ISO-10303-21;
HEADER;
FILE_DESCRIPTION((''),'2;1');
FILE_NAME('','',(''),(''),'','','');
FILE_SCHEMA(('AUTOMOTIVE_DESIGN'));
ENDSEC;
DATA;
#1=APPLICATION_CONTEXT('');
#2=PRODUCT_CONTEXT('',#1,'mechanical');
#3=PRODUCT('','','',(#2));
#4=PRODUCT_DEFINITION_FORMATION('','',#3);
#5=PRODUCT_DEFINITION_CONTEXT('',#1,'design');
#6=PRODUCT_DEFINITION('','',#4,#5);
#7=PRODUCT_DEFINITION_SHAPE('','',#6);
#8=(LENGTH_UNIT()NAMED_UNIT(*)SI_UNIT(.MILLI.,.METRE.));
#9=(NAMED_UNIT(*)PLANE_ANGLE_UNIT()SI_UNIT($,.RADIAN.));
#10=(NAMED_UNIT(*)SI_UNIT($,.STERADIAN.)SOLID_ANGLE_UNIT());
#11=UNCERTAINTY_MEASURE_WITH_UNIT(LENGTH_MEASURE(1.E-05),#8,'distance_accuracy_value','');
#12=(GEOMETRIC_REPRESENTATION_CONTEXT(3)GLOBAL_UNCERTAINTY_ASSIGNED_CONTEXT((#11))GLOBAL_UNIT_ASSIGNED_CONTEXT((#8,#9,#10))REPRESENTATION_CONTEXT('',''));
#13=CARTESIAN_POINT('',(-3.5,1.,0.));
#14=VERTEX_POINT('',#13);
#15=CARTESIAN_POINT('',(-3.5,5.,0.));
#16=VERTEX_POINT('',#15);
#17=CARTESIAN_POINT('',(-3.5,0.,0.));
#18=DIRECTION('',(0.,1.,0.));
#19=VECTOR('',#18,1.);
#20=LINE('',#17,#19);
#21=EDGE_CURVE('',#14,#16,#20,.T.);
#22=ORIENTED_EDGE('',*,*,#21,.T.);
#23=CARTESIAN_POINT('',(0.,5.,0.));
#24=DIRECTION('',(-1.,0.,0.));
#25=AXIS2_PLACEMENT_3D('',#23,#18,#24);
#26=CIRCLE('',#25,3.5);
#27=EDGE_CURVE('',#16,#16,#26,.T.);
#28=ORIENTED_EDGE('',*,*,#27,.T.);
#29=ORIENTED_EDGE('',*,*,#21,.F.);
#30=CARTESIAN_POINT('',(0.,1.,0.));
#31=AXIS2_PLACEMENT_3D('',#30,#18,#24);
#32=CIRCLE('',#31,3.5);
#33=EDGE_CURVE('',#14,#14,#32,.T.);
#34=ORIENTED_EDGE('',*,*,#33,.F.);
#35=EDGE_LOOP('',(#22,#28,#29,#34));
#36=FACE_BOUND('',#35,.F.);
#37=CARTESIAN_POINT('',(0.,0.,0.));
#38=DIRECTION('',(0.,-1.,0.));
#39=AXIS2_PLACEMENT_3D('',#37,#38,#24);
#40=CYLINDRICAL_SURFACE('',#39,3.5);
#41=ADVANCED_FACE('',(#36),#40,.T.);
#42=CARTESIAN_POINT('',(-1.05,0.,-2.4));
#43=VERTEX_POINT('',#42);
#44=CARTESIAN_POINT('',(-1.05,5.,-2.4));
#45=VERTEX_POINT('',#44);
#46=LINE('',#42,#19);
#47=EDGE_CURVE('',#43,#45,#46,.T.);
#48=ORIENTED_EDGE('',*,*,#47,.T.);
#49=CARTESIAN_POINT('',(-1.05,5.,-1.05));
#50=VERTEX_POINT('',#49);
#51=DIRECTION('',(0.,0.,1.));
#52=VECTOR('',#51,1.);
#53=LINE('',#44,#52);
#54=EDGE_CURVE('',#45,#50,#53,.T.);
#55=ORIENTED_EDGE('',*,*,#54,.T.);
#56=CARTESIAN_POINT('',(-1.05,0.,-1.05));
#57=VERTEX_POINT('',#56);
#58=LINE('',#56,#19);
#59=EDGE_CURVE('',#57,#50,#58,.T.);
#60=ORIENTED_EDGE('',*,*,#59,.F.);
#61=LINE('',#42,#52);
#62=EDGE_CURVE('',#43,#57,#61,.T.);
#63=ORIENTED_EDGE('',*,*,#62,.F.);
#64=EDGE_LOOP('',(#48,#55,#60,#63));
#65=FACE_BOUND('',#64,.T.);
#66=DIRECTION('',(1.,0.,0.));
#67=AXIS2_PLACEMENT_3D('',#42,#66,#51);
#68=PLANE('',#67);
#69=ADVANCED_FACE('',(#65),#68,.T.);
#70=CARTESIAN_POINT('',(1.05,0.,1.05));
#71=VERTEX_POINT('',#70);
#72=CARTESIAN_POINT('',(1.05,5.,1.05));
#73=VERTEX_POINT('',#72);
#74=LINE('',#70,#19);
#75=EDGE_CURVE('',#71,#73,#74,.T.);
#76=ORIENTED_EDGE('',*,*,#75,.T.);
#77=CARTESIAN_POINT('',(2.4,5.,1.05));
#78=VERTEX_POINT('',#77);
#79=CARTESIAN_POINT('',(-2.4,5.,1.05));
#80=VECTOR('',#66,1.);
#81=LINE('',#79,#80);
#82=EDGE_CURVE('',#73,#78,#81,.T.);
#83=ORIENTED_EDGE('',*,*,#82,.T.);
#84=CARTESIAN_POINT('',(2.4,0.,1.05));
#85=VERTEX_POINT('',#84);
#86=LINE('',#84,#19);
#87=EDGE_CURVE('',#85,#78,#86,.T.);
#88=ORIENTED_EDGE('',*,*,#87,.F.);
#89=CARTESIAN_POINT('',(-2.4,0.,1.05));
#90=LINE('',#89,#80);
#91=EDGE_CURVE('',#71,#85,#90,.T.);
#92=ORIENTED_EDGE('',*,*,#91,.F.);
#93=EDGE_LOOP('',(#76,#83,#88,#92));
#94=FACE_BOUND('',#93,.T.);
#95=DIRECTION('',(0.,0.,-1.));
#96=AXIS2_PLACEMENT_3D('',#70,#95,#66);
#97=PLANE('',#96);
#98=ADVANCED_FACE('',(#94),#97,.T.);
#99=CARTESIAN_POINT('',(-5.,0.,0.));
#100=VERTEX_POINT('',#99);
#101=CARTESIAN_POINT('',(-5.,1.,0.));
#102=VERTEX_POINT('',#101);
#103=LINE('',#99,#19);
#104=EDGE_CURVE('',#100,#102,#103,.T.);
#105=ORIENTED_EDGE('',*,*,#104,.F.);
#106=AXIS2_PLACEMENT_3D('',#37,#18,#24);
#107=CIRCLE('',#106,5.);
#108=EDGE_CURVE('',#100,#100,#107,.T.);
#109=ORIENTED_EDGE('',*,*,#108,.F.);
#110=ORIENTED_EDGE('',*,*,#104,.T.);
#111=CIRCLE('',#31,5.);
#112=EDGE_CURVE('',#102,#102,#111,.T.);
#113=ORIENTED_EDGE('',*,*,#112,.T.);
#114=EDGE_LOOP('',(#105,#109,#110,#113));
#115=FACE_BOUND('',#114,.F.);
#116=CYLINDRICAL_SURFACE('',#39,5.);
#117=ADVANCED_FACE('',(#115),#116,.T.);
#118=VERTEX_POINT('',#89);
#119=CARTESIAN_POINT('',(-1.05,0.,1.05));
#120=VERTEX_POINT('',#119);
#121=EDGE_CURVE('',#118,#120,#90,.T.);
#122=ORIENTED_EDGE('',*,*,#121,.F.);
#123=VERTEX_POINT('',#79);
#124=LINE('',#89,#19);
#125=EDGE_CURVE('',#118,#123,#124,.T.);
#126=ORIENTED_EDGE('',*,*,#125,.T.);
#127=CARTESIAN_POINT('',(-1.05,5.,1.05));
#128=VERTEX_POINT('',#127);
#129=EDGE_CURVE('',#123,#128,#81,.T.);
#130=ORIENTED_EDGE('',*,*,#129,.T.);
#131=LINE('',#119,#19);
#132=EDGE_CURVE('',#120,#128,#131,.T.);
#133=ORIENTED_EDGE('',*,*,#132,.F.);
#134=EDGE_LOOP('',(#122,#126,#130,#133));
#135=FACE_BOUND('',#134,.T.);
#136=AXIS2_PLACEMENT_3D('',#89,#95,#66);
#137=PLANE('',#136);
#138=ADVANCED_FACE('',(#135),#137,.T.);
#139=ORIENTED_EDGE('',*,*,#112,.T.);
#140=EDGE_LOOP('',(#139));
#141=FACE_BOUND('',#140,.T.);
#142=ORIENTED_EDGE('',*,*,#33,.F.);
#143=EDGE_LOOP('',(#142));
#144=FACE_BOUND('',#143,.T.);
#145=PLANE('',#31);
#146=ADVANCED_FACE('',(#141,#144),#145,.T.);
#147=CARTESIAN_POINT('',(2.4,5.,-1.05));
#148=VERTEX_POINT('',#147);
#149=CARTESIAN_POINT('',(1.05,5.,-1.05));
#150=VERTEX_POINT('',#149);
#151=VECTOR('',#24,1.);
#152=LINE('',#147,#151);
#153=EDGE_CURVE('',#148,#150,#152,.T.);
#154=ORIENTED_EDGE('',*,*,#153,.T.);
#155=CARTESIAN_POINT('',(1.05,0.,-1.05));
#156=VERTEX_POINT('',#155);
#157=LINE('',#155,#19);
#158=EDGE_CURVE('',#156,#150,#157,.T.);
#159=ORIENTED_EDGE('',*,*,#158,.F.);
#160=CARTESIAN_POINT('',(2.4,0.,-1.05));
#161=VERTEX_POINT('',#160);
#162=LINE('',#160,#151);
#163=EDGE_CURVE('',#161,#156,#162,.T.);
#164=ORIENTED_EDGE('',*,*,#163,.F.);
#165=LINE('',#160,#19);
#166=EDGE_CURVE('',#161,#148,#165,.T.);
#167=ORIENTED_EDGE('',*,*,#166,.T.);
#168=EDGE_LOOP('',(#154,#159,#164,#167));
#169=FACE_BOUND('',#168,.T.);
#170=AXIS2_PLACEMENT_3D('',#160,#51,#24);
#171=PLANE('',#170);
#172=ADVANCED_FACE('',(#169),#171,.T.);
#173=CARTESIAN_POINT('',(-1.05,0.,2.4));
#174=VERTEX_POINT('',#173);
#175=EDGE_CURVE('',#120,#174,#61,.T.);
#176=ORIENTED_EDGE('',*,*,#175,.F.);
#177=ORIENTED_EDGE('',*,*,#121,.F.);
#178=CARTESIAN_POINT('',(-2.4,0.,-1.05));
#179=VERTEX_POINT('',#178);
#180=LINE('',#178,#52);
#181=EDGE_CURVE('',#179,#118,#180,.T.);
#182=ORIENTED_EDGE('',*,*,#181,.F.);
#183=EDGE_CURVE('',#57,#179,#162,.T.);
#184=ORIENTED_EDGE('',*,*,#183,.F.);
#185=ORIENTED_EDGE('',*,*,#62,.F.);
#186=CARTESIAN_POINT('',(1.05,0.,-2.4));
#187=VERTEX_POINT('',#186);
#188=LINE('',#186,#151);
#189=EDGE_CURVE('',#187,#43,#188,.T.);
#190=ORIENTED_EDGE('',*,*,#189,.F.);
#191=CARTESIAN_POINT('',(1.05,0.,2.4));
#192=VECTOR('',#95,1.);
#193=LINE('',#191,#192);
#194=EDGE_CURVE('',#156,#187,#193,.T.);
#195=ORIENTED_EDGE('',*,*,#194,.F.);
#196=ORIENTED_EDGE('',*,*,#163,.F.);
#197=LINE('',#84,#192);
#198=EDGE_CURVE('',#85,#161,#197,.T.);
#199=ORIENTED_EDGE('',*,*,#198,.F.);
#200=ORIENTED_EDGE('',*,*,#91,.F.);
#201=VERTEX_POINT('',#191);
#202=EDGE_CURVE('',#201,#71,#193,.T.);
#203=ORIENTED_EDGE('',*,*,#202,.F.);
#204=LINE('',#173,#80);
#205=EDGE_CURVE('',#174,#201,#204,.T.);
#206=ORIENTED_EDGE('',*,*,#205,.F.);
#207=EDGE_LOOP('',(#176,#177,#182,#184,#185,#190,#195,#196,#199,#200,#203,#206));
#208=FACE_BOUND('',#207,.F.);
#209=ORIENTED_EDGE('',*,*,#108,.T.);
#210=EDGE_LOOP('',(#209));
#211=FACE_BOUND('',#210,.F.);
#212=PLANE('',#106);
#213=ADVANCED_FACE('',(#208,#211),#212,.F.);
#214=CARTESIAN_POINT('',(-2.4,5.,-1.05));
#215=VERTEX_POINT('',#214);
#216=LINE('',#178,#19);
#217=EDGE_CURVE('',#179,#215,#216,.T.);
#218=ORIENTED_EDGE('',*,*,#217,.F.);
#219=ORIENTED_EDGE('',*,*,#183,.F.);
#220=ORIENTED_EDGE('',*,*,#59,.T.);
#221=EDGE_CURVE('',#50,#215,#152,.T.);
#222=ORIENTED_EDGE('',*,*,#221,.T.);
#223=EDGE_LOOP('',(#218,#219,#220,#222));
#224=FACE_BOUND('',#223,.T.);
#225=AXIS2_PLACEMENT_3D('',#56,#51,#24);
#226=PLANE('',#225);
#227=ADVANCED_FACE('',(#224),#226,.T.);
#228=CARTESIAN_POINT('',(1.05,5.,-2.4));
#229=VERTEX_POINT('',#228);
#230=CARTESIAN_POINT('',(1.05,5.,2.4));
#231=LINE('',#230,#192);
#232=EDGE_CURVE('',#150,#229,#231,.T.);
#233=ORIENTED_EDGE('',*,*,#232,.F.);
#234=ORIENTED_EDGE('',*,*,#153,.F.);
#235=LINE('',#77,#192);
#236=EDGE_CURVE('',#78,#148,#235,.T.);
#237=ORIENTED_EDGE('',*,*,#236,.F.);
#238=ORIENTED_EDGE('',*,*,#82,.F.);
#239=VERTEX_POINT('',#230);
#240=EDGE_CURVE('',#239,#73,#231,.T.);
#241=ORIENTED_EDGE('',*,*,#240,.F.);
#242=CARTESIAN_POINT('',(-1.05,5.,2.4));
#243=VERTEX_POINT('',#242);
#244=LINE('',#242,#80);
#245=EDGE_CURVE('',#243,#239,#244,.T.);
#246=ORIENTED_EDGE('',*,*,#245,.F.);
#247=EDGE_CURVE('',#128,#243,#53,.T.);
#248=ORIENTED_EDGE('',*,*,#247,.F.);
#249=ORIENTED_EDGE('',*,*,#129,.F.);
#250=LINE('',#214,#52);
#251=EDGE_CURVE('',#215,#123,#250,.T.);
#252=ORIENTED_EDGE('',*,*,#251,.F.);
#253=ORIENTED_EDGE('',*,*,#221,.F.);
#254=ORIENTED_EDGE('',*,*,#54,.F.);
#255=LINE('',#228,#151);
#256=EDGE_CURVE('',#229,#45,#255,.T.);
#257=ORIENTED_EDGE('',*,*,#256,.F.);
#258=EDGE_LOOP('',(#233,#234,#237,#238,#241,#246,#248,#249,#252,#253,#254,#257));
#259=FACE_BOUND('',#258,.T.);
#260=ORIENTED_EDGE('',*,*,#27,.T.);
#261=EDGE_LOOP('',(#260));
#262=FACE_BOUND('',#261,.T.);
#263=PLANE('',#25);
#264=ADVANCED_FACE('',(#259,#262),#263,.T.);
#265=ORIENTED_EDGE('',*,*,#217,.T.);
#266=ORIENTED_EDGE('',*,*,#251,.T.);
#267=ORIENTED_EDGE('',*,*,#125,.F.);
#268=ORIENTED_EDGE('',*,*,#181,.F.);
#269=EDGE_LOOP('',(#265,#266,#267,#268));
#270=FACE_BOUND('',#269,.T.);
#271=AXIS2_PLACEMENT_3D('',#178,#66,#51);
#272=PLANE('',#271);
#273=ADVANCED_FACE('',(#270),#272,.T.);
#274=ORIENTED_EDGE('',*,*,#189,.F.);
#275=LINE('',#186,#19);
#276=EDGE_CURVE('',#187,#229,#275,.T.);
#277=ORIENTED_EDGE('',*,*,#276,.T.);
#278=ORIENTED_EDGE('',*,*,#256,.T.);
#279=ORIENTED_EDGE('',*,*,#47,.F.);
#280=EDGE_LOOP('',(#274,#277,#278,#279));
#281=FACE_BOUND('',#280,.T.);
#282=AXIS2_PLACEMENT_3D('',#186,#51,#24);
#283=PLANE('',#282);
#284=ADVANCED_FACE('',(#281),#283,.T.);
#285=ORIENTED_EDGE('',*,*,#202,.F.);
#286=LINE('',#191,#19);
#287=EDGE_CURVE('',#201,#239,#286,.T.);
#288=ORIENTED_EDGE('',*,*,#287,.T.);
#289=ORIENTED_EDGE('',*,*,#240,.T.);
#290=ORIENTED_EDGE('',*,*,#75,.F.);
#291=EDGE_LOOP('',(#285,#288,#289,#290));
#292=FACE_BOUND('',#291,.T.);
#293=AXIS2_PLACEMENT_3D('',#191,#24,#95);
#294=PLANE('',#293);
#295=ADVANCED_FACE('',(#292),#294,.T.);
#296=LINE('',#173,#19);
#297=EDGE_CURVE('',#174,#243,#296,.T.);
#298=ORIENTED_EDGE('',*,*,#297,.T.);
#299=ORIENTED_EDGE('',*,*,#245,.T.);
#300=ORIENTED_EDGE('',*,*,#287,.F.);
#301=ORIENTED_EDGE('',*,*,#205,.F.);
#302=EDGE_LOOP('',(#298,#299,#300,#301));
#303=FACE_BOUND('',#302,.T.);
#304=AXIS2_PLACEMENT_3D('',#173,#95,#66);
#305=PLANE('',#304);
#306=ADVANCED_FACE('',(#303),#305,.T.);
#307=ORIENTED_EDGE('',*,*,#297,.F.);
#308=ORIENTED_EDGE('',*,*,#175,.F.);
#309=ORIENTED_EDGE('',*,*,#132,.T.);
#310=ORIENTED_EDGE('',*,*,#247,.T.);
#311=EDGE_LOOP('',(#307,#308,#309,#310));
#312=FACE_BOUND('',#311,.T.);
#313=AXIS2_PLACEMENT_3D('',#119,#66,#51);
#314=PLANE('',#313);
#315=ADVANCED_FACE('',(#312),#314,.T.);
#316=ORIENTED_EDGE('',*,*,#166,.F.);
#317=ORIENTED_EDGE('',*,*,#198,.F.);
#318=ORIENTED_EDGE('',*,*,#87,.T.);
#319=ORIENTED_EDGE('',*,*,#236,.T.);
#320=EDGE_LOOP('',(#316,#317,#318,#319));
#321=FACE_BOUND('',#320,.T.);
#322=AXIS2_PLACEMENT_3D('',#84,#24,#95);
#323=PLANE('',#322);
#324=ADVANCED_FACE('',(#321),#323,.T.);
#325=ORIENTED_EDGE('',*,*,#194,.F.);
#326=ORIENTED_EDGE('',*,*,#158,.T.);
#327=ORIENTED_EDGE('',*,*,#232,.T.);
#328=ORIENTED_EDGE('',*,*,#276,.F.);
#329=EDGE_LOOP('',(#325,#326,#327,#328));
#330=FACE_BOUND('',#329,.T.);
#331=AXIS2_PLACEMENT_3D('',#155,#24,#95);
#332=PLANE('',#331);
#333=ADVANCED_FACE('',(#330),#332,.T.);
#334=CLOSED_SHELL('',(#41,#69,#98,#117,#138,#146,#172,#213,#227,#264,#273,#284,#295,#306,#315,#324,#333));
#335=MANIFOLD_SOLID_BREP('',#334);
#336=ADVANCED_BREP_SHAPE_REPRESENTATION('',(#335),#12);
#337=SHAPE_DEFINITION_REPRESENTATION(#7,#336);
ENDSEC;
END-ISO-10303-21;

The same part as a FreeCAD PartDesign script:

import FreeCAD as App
import Part
import Sketcher

V = App.Vector


def add_polygon(sketch, points):
    """Adds a closed chain of lines whose ends are joined by coincident constraints."""
    first, n = sketch.GeometryCount, len(points)
    for a, b in zip(points, points[1:] + points[:1]):
        sketch.addGeometry(Part.LineSegment(App.Vector(*a, 0), App.Vector(*b, 0)), False)
    for i in range(n):
        sketch.addConstraint(Sketcher.Constraint("Coincident", first + i, 2, first + (i + 1) % n, 1))

doc = App.newDocument("Part")
body = doc.addObject("PartDesign::Body", "Body")

sketch1 = body.newObject("Sketcher::SketchObject", "Sketch")
sketch1.AttachmentSupport = (doc.getObject("XZ_Plane"), [""])
sketch1.MapMode = "FlatFace"
sketch1.addGeometry([
    Part.Circle(V(0, 0, 0), V(0, 0, 1), 5),
    Part.Circle(V(0, 0, 0), V(0, 0, 1), 3.5),
], False)
sketch1.addConstraint([
    Sketcher.Constraint("Coincident", 0, 3, -1, 1),
    Sketcher.Constraint("Coincident", 1, 3, -1, 1),
    Sketcher.Constraint("Diameter", 0, 10.0),
    Sketcher.Constraint("Diameter", 1, 7.0),
])
pad1 = body.newObject("PartDesign::Pad", "Pad")
pad1.Profile = sketch1
pad1.Length = 1
pad1.Reversed = True

sketch2 = body.newObject("Sketcher::SketchObject", "Sketch001")
sketch2.AttachmentSupport = (doc.getObject("XZ_Plane"), [""])
sketch2.MapMode = "FlatFace"
sketch2.addGeometry(Part.Circle(V(0, 0, 0), V(0, 0, 1), 3.5), False)
add_polygon(sketch2, [(-1.1, 1.1), (-2.4, 1.1), (-2.4, -1.1), (-1.1, -1.1), (-1.1, -2.4), (1.1, -2.4), (1.1, -1.1), (2.4, -1.1), (2.4, 1.1), (1.1, 1.1), (1.1, 2.4), (-1.1, 2.4)])
sketch2.addConstraint([
    Sketcher.Constraint("Horizontal", 1),
    Sketcher.Constraint("Vertical", 2),
    Sketcher.Constraint("Horizontal", 3),
    Sketcher.Constraint("Vertical", 4),
    Sketcher.Constraint("Horizontal", 5),
    Sketcher.Constraint("Vertical", 6),
    Sketcher.Constraint("Horizontal", 7),
    Sketcher.Constraint("Vertical", 8),
    Sketcher.Constraint("Horizontal", 9),
    Sketcher.Constraint("Vertical", 10),
    Sketcher.Constraint("Horizontal", 11),
    Sketcher.Constraint("Vertical", 12),
    Sketcher.Constraint("Coincident", 0, 3, -1, 1),
    Sketcher.Constraint("Symmetric", 1, 2, 7, 2, -1, 1),
    Sketcher.Constraint("Symmetric", 3, 2, 9, 2, -1, 1),
    Sketcher.Constraint("Symmetric", 5, 2, 11, 2, -1, 1),
    Sketcher.Constraint("Symmetric", 3, 2, 6, 2, -2),
    Sketcher.Constraint("Equal", 11, 2),
    Sketcher.Constraint("Equal", 9, 4),
    Sketcher.Constraint("Diameter", 0, 7.0),
    Sketcher.Constraint("DistanceX", 5, 1, 5, 2, 2.1),
    Sketcher.Constraint("DistanceX", 1, 2, 1, 1, 1.35),
])
pad2 = body.newObject("PartDesign::Pad", "Pad001")
pad2.Profile = sketch2
pad2.Length = 5
pad2.Reversed = True

doc.recompute()
